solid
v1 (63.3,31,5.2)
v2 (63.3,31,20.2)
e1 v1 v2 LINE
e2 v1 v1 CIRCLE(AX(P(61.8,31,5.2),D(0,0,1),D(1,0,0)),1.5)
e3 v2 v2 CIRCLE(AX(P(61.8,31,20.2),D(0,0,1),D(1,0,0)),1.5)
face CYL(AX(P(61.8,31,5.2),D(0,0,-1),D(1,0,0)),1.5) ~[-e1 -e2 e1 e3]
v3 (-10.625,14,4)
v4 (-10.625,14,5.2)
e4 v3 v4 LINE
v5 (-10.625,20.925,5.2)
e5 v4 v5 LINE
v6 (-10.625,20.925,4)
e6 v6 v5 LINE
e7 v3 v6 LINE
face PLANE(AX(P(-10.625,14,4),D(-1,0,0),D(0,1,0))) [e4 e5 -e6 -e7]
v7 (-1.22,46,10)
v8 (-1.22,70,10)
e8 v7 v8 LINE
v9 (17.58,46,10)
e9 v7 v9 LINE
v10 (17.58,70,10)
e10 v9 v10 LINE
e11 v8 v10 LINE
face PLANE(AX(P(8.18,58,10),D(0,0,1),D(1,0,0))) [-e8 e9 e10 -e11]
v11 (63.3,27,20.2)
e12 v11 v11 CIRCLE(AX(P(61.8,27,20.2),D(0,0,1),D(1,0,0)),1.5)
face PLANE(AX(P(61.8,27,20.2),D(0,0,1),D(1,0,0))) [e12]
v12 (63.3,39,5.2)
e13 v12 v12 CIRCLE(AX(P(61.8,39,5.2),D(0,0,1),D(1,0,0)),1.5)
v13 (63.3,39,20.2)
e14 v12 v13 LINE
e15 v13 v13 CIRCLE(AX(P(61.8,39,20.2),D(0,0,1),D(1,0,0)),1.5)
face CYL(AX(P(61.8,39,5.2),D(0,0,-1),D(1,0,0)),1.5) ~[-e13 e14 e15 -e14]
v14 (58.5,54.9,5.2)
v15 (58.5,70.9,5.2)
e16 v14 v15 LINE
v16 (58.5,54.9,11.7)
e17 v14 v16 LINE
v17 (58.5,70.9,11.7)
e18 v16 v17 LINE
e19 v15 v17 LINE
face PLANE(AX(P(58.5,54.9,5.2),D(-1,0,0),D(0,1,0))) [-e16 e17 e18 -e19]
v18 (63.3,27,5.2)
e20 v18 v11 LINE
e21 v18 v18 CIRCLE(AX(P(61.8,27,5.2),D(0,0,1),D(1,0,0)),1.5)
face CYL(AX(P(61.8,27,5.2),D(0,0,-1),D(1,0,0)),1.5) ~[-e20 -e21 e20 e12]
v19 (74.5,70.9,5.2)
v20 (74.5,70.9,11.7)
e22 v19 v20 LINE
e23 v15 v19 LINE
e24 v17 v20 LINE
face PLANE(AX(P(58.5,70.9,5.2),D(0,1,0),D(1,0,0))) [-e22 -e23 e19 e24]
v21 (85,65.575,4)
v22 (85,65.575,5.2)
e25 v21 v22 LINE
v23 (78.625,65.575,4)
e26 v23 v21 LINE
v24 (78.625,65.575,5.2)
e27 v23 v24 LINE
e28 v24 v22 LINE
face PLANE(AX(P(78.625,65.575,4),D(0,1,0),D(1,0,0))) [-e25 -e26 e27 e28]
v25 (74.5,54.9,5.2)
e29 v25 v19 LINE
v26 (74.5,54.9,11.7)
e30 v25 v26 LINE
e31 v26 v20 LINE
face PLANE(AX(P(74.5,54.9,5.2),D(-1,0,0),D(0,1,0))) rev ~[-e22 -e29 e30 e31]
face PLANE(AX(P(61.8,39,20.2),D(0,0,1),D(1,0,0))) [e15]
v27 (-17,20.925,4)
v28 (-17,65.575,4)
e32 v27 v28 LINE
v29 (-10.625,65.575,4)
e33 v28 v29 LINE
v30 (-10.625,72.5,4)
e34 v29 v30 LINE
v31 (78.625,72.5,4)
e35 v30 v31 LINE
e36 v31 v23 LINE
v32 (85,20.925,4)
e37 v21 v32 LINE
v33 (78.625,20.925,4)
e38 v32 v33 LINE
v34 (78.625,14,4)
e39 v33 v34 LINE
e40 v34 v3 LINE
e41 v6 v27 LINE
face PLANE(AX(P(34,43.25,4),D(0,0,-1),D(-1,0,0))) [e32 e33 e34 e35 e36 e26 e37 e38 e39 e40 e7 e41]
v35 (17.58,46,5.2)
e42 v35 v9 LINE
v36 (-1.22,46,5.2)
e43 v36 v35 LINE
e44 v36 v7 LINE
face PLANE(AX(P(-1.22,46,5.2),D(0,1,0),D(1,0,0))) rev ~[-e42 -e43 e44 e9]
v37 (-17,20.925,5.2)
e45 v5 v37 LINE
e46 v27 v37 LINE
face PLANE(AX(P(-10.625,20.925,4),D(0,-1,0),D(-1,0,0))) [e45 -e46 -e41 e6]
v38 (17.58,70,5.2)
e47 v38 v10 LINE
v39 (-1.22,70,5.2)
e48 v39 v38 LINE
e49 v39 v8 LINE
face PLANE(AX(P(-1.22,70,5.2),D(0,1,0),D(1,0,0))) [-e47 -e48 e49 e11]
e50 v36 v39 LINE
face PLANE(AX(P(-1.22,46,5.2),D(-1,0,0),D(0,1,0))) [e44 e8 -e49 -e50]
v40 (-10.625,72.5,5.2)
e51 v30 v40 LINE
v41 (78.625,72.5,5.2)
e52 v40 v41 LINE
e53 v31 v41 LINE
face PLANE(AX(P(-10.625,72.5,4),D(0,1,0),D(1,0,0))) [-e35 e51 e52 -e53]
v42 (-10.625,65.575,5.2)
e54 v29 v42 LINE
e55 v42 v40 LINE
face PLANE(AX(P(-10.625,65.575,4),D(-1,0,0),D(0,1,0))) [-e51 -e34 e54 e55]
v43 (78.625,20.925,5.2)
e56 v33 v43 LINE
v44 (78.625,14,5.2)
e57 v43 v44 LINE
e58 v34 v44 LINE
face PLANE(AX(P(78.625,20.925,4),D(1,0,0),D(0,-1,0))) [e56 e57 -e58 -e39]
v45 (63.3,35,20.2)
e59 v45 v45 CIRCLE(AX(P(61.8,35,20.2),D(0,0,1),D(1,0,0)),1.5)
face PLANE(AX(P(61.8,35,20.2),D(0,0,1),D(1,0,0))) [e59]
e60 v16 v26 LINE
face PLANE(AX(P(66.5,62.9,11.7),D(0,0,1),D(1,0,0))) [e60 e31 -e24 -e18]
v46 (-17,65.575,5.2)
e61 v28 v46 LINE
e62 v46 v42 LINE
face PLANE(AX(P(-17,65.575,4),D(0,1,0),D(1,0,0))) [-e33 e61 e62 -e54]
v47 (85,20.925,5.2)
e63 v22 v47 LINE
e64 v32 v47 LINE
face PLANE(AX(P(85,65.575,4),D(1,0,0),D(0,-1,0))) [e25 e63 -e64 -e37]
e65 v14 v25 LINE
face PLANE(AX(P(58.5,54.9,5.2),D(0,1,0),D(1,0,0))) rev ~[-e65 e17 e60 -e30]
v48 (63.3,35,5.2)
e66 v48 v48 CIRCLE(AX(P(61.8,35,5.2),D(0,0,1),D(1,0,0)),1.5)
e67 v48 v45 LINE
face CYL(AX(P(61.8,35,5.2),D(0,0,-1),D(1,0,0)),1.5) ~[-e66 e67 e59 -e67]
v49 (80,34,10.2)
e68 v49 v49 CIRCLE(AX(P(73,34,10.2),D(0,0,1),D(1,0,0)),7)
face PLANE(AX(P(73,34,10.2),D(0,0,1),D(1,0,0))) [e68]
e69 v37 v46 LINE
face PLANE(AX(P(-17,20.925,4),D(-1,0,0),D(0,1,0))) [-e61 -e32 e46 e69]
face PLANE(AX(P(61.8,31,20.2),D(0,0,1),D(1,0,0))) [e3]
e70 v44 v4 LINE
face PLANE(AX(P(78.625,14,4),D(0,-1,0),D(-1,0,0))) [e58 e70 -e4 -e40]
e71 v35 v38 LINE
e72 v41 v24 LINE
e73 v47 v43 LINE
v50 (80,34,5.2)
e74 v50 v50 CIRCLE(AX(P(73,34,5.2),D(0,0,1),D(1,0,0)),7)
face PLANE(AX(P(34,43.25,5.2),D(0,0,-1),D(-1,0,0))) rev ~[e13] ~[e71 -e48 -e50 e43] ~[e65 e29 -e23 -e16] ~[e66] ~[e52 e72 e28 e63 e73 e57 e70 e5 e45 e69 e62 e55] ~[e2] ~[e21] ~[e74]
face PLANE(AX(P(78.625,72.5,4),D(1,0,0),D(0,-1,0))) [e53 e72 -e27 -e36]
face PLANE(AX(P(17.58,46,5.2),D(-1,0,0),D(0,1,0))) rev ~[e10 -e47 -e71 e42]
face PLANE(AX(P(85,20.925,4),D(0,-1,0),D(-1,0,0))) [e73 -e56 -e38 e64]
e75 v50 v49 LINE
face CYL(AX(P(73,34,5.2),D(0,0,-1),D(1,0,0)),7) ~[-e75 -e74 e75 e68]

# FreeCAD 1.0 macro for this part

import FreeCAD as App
import Part
import Sketcher

V = App.Vector


def add_polygon(sketch, points):
    """Adds a closed chain of lines whose ends are joined by coincident constraints."""
    first, n = sketch.GeometryCount, len(points)
    for a, b in zip(points, points[1:] + points[:1]):
        sketch.addGeometry(Part.LineSegment(App.Vector(*a, 0), App.Vector(*b, 0)), False)
    for i in range(n):
        sketch.addConstraint(Sketcher.Constraint("Coincident", first + i, 2, first + (i + 1) % n, 1))

doc = App.newDocument("Part")
params = doc.addObject("Spreadsheet::Sheet", "Params")
for row, (alias, value) in enumerate([
    ("sketch1_width", "89.25 mm"),
    ("sketch1_height", "44.65 mm"),
    ("pad1_length", "1.2 mm"),
    ("sketch2_width", "16 mm"),
    ("pad2_length", "6.5 mm"),
    ("sketch3_diameter", "3 mm"),
    ("pad3_length", "15 mm"),
    ("sketch4_diameter", "14 mm"),
    ("pad4_length", "5 mm"),
    ("sketch5_height", "24 mm"),
    ("sketch5_width", "18.8 mm"),
    ("pad5_length", "4.8 mm"),
], start=1):
    params.set(f"A{row}", alias)
    params.set(f"B{row}", "=" + value)
    params.setAlias(f"B{row}", alias)

body = doc.addObject("PartDesign::Body", "Body")

# Sketch on XY plane
sketch1 = body.newObject("Sketcher::SketchObject", "Sketch")
sketch1.AttachmentSupport = (doc.getObject("XY_Plane"), [""])
sketch1.MapMode = "FlatFace"
add_polygon(sketch1, [(79, 72), (-11, 72), (-11, 66), (-17, 66), (-17, 21), (-11, 21), (-11, 14), (79, 14), (79, 21), (85, 21), (85, 66), (79, 66)])  # lines 0-11
sketch1.addConstraint([
    Sketcher.Constraint("Horizontal", 0),
    Sketcher.Constraint("Vertical", 1),
    Sketcher.Constraint("Horizontal", 2),
    Sketcher.Constraint("Vertical", 3),
    Sketcher.Constraint("Horizontal", 4),
    Sketcher.Constraint("Vertical", 5),
    Sketcher.Constraint("Horizontal", 6),
    Sketcher.Constraint("Vertical", 7),
    Sketcher.Constraint("Horizontal", 8),
    Sketcher.Constraint("Vertical", 9),
    Sketcher.Constraint("Horizontal", 10),
    Sketcher.Constraint("Vertical", 11),
    Sketcher.Constraint("Horizontal", 4, 2, 7, 2),
    Sketcher.Constraint("Horizontal", 2, 2, 9, 2),
    Sketcher.Constraint("Vertical", 1, 2, 4, 2),
    Sketcher.Constraint("Vertical", 7, 2, 10, 2),
    Sketcher.Constraint("Equal", 4, 8),
    Sketcher.Constraint("Equal", 1, 5),
    Sketcher.Constraint("DistanceX", 2, 2, -1, 1, 17.0),
    Sketcher.Constraint("DistanceY", -1, 1, 5, 2, 14.0),
    Sketcher.Constraint("DistanceX", -1, 1, 8, 2, 85.0),
    Sketcher.Constraint("DistanceX", 0, 2, 0, 1, 89.25),
    Sketcher.Constraint("DistanceY", 3, 2, 3, 1, 44.65),
    Sketcher.Constraint("DistanceY", -1, 1, 0, 2, 72.5),
])
sketch1.setExpression("Constraints[33]", "Params.sketch1_width")
sketch1.setExpression("Constraints[34]", "Params.sketch1_height")
pad1 = body.newObject("PartDesign::Pad", "Pad")
pad1.Profile = sketch1
pad1.setExpression("Length", "Params.pad1_length")

# Sketch on XY plane
sketch2 = body.newObject("Sketcher::SketchObject", "Sketch001")
sketch2.AttachmentSupport = (doc.getObject("XY_Plane"), [""])
sketch2.MapMode = "FlatFace"
sketch2.AttachmentOffset = App.Placement(V(0, 0, 1.2), App.Rotation())
add_polygon(sketch2, [(58, 71), (58, 55), (74, 55), (74, 71)])  # lines 0-3
sketch2.addConstraint([
    Sketcher.Constraint("Vertical", 0),
    Sketcher.Constraint("Horizontal", 1),
    Sketcher.Constraint("Vertical", 2),
    Sketcher.Constraint("Horizontal", 3),
    Sketcher.Constraint("Equal", 3, 0),
    Sketcher.Constraint("DistanceX", 1, 1, 1, 2, 16.0),
    Sketcher.Constraint("DistanceX", -1, 1, 0, 2, 58.5),
    Sketcher.Constraint("DistanceY", -1, 1, 0, 2, 54.9),
])
sketch2.setExpression("Constraints[9]", "Params.sketch2_width")
pad2 = body.newObject("PartDesign::Pad", "Pad001")
pad2.Profile = sketch2
pad2.setExpression("Length", "Params.pad2_length")

# Sketch on XY plane
sketch3 = body.newObject("Sketcher::SketchObject", "Sketch002")
sketch3.AttachmentSupport = (doc.getObject("XY_Plane"), [""])
sketch3.MapMode = "FlatFace"
sketch3.AttachmentOffset = App.Placement(V(0, 0, 1.2), App.Rotation())
sketch3.addGeometry([
    Part.Circle(V(61.8, 39, 0), V(0, 0, 1), 1.5),
    Part.Circle(V(61.8, 35, 0), V(0, 0, 1), 1.5),
    Part.Circle(V(61.8, 31, 0), V(0, 0, 1), 1.5),
    Part.Circle(V(61.8, 27, 0), V(0, 0, 1), 1.5),
], False)
sketch3.addConstraint([
    Sketcher.Constraint("Equal", 0, 1),
    Sketcher.Constraint("Equal", 1, 2),
    Sketcher.Constraint("Equal", 2, 3),
    Sketcher.Constraint("Vertical", 0, 3, 1, 3),
    Sketcher.Constraint("Vertical", 1, 3, 2, 3),
    Sketcher.Constraint("Vertical", 2, 3, 3, 3),
    Sketcher.Constraint("Diameter", 0, 3.0),
    Sketcher.Constraint("DistanceY", -1, 1, 0, 3, 39.0),
    Sketcher.Constraint("DistanceY", -1, 1, 1, 3, 35.0),
    Sketcher.Constraint("DistanceY", -1, 1, 2, 3, 31.0),
    Sketcher.Constraint("DistanceY", -1, 1, 3, 3, 27.0),
    Sketcher.Constraint("DistanceX", -1, 1, 0, 3, 61.8),
])
sketch3.setExpression("Constraints[6]", "Params.sketch3_diameter")
pad3 = body.newObject("PartDesign::Pad", "Pad002")
pad3.Profile = sketch3
pad3.setExpression("Length", "Params.pad3_length")

# Sketch on XY plane
sketch4 = body.newObject("Sketcher::SketchObject", "Sketch003")
sketch4.AttachmentSupport = (doc.getObject("XY_Plane"), [""])
sketch4.MapMode = "FlatFace"
sketch4.AttachmentOffset = App.Placement(V(0, 0, 1.2), App.Rotation())
sketch4.addGeometry(Part.Circle(V(73, 34, 0), V(0, 0, 1), 7), False)
sketch4.addConstraint([
    Sketcher.Constraint("Diameter", 0, 14.0),
    Sketcher.Constraint("DistanceX", -1, 1, 0, 3, 73.0),
    Sketcher.Constraint("DistanceY", -1, 1, 0, 3, 34.0),
])
sketch4.setExpression("Constraints[0]", "Params.sketch4_diameter")
pad4 = body.newObject("PartDesign::Pad", "Pad003")
pad4.Profile = sketch4
pad4.setExpression("Length", "Params.pad4_length")

# Sketch on XY plane
sketch5 = body.newObject("Sketcher::SketchObject", "Sketch004")
sketch5.AttachmentSupport = (doc.getObject("XY_Plane"), [""])
sketch5.MapMode = "FlatFace"
sketch5.AttachmentOffset = App.Placement(V(0, 0, 1.2), App.Rotation())
add_polygon(sketch5, [(-1, 70), (-1, 46), (18, 46), (18, 70)])  # lines 0-3
sketch5.addConstraint([
    Sketcher.Constraint("Vertical", 0),
    Sketcher.Constraint("Horizontal", 1),
    Sketcher.Constraint("Vertical", 2),
    Sketcher.Constraint("Horizontal", 3),
    Sketcher.Constraint("DistanceY", 0, 2, 0, 1, 24.0),
    Sketcher.Constraint("DistanceX", 1, 1, 1, 2, 18.8),
    Sketcher.Constraint("DistanceY", -1, 1, 0, 2, 46.0),
    Sketcher.Constraint("DistanceX", 0, 2, -1, 1, 1.22),
])
sketch5.setExpression("Constraints[8]", "Params.sketch5_height")
sketch5.setExpression("Constraints[9]", "Params.sketch5_width")
pad5 = body.newObject("PartDesign::Pad", "Pad004")
pad5.Profile = sketch5
pad5.setExpression("Length", "Params.pad5_length")
body2 = doc.addObject("PartDesign::Body", "Body001")
doc.recompute()

body.Placement = App.Placement(V(0, 0, 4), App.Rotation(V(0, 0, 1), 0))
boolean = body2.newObject("PartDesign::Boolean", "Boolean")
boolean.Type = "Fuse"
boolean.addObjects([body])

doc.recompute()
